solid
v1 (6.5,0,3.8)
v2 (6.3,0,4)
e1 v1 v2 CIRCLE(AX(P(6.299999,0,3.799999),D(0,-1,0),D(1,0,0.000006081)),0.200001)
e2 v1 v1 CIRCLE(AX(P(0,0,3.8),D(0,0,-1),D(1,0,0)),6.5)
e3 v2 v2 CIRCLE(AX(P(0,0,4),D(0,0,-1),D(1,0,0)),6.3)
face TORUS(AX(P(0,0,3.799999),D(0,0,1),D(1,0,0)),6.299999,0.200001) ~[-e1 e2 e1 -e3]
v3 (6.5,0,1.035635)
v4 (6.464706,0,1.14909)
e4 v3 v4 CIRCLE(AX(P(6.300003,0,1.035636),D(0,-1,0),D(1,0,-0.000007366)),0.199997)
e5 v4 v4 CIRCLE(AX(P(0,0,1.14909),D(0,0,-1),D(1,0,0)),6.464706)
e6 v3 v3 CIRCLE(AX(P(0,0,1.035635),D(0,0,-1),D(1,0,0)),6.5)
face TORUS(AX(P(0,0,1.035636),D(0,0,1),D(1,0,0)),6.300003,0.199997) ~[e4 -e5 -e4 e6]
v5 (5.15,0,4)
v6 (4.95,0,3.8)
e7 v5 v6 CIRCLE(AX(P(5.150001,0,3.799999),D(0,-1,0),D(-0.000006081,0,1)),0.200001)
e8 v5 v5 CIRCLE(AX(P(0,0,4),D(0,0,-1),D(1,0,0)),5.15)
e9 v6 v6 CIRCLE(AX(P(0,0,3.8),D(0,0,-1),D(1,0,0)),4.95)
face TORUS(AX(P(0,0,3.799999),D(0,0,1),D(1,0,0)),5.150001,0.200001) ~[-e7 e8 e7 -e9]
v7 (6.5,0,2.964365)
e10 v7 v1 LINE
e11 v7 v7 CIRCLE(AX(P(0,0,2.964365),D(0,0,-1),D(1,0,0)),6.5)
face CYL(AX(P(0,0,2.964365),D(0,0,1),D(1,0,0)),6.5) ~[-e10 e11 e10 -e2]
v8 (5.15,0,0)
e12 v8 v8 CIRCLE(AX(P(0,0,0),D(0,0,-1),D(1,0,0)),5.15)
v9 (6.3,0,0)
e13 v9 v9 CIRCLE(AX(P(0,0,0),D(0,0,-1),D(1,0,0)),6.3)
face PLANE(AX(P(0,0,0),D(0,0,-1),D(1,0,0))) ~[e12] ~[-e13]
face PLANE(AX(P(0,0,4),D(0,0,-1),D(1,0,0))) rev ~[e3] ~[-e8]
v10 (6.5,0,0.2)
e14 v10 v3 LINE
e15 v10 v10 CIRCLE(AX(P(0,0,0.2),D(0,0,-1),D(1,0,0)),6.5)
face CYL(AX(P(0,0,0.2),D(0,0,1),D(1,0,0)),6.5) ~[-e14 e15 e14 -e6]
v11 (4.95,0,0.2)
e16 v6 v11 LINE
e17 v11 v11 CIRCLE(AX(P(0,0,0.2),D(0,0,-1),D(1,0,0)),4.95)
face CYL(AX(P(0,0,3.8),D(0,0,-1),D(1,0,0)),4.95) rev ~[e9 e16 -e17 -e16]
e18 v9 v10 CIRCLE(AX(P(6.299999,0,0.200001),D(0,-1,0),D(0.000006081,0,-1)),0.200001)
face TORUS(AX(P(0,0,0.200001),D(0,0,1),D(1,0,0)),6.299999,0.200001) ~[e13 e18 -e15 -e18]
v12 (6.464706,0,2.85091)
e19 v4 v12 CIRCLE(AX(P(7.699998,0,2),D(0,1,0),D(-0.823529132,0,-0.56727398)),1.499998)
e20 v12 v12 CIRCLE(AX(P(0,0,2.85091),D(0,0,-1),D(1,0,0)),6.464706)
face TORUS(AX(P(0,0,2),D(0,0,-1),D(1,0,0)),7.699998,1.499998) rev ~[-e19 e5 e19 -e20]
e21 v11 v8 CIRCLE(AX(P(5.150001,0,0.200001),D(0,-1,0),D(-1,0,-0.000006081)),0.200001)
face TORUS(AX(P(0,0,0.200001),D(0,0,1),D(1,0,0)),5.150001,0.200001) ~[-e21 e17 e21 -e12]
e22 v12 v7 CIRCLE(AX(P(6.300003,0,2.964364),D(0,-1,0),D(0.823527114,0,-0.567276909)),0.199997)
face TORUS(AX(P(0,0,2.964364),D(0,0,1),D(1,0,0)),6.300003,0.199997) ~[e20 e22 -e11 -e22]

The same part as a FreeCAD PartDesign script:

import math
import FreeCAD as App
import Part
import Sketcher
Q = App.Units.Quantity

doc = App.newDocument("Part")
params = doc.addObject("Spreadsheet::Sheet", "Params")
for row, (alias, value) in enumerate([
    ("sketch1_radius", "0.200001 mm"),
    ("sketch1_radius2", "1.499998 mm"),
    ("sketch1_height", "3.6 mm"),
    ("sketch1_width", "1.15 mm"),
    ("revolution_angle", "360 deg"),
], start=1):
    params.set(f"A{row}", alias)
    params.set(f"B{row}", "=" + value)
    params.setAlias(f"B{row}", alias)

body = doc.addObject("PartDesign::Body", "Body")

sketch1 = body.newObject("Sketcher::SketchObject", "Sketch")
sketch1.AttachmentSupport = (doc.getObject("XZ_Plane"), [""])
sketch1.MapMode = "FlatFace"
sketch1.addGeometry(Part.LineSegment(App.Vector(4.95, 3.8, 0), App.Vector(4.95, 0.2, 0)), False)
sketch1.addGeometry(Part.ArcOfCircle(Part.Circle(App.Vector(5.15, 0.2, 0), App.Vector(0, 0, 1), 0.2), math.radians(-180), math.radians(-90)), False)
sketch1.addGeometry(Part.LineSegment(App.Vector(5.15, 0, 0), App.Vector(6.3, 0, 0)), False)
sketch1.addGeometry(Part.ArcOfCircle(Part.Circle(App.Vector(6.3, 0.2, 0), App.Vector(0, 0, 1), 0.2), math.radians(-90), math.radians(0)), False)
sketch1.addGeometry(Part.LineSegment(App.Vector(6.5, 0.2, 0), App.Vector(6.5, 1.04, 0)), False)
sketch1.addGeometry(Part.ArcOfCircle(Part.Circle(App.Vector(6.3, 1.04, 0), App.Vector(0, 0, 1), 0.2), math.radians(0), math.radians(35)), False)
sketch1.addGeometry(Part.ArcOfCircle(Part.Circle(App.Vector(7.7, 2, 0), App.Vector(0, 0, 1), 1.5), math.radians(145), math.radians(215)), False)
sketch1.addGeometry(Part.ArcOfCircle(Part.Circle(App.Vector(6.3, 2.96, 0), App.Vector(0, 0, 1), 0.2), math.radians(-35), math.radians(0)), False)
sketch1.addGeometry(Part.LineSegment(App.Vector(6.5, 2.96, 0), App.Vector(6.5, 3.8, 0)), False)
sketch1.addGeometry(Part.ArcOfCircle(Part.Circle(App.Vector(6.3, 3.8, 0), App.Vector(0, 0, 1), 0.2), math.radians(0), math.radians(90)), False)
sketch1.addGeometry(Part.LineSegment(App.Vector(6.3, 4, 0), App.Vector(5.15, 4, 0)), False)
sketch1.addGeometry(Part.ArcOfCircle(Part.Circle(App.Vector(5.15, 3.8, 0), App.Vector(0, 0, 1), 0.2), math.radians(90), math.radians(180)), False)
sketch1.addConstraint(Sketcher.Constraint("Coincident", 0, 2, 1, 1))
sketch1.addConstraint(Sketcher.Constraint("Coincident", 1, 2, 2, 1))
sketch1.addConstraint(Sketcher.Constraint("Coincident", 2, 2, 3, 1))
sketch1.addConstraint(Sketcher.Constraint("Coincident", 3, 2, 4, 1))
sketch1.addConstraint(Sketcher.Constraint("Coincident", 4, 2, 5, 1))
sketch1.addConstraint(Sketcher.Constraint("Coincident", 5, 2, 6, 2))
sketch1.addConstraint(Sketcher.Constraint("Coincident", 6, 1, 7, 1))
sketch1.addConstraint(Sketcher.Constraint("Coincident", 7, 2, 8, 1))
sketch1.addConstraint(Sketcher.Constraint("Coincident", 8, 2, 9, 1))
sketch1.addConstraint(Sketcher.Constraint("Coincident", 9, 2, 10, 1))
sketch1.addConstraint(Sketcher.Constraint("Coincident", 10, 2, 11, 1))
sketch1.addConstraint(Sketcher.Constraint("Coincident", 11, 2, 0, 1))
sketch1.addConstraint(Sketcher.Constraint("Vertical", 0))
sketch1.addConstraint(Sketcher.Constraint("Horizontal", 2))
sketch1.addConstraint(Sketcher.Constraint("Vertical", 4))
sketch1.addConstraint(Sketcher.Constraint("Vertical", 8))
sketch1.addConstraint(Sketcher.Constraint("Horizontal", 10))
sketch1.addConstraint(Sketcher.Constraint("Equal", 1, 3))
sketch1.addConstraint(Sketcher.Constraint("Equal", 5, 7))
sketch1.addConstraint(Sketcher.Constraint("Equal", 3, 9))
sketch1.addConstraint(Sketcher.Constraint("Equal", 9, 11))
sketch1.addConstraint(Sketcher.Constraint("PointOnObject", 1, 2, -1))
sketch1.addConstraint(Sketcher.Constraint("Horizontal", 3, 3, 0, 2))
sketch1.addConstraint(Sketcher.Constraint("Horizontal", 0, 2, 3, 2))
sketch1.addConstraint(Sketcher.Constraint("Horizontal", 5, 3, 4, 2))
sketch1.addConstraint(Sketcher.Constraint("Horizontal", 11, 3, 8, 2))
sketch1.addConstraint(Sketcher.Constraint("Horizontal", 8, 2, 11, 2))
sketch1.addConstraint(Sketcher.Constraint("Vertical", 5, 3, 7, 3))
sketch1.addConstraint(Sketcher.Constraint("Vertical", 11, 3, 1, 2))
sketch1.addConstraint(Sketcher.Constraint("Vertical", 9, 3, 2, 2))
sketch1.addConstraint(Sketcher.Constraint("Vertical", 5, 2, 6, 1))
sketch1.addConstraint(Sketcher.Constraint("Vertical", 2, 2, 9, 2))
sketch1.addConstraint(Sketcher.Constraint("Vertical", 1, 2, 10, 2))
sketch1.addConstraint(Sketcher.Constraint("Equal", 4, 8))
sketch1.addConstraint(Sketcher.Constraint("Radius", 1, Q("0.200001 mm")))
sketch1.addConstraint(Sketcher.Constraint("Radius", 6, Q("1.499998 mm")))
sketch1.addConstraint(Sketcher.Constraint("DistanceY", 0, 2, 0, 1, Q("3.6 mm")))
sketch1.addConstraint(Sketcher.Constraint("DistanceY", -1, 1, 6, 3, Q("2 mm")))
sketch1.addConstraint(Sketcher.Constraint("DistanceX", 2, 1, 2, 2, Q("1.15 mm")))
sketch1.addConstraint(Sketcher.Constraint("DistanceX", -1, 1, 3, 3, Q("6.299999 mm")))
sketch1.addConstraint(Sketcher.Constraint("DistanceX", -1, 1, 6, 3, Q("7.699998 mm")))
sketch1.addConstraint(Sketcher.Constraint("Radius", 5, Q("0.199997 mm")))
sketch1.addConstraint(Sketcher.Constraint("DistanceY", -1, 1, 5, 2, Q("1.14909 mm")))
sketch1.setExpression("Constraints[34]", "Params.sketch1_radius")
sketch1.setExpression("Constraints[35]", "Params.sketch1_radius2")
sketch1.setExpression("Constraints[36]", "Params.sketch1_height")
sketch1.setExpression("Constraints[38]", "Params.sketch1_width")
revolution = body.newObject("PartDesign::Revolution", "Revolution")
revolution.Profile = sketch1
revolution.ReferenceAxis = (sketch1, ["V_Axis"])
revolution.setExpression("Angle", "Params.revolution_angle")

doc.recompute()
